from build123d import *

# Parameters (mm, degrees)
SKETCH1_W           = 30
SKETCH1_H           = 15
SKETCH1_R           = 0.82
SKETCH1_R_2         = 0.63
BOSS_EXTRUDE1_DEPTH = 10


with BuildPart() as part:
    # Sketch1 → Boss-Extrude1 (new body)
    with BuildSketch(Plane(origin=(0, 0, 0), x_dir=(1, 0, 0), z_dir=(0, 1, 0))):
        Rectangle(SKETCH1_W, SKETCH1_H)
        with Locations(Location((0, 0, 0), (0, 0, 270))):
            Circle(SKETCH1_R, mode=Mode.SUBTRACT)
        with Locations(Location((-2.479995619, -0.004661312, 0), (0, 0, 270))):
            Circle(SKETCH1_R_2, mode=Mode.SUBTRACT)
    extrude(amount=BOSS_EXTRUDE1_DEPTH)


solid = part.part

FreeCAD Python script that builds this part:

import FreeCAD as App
import Part
import Sketcher


def add_polygon(sketch, points):
    """Adds a closed chain of lines whose ends are joined by coincident constraints."""
    first, n = sketch.GeometryCount, len(points)
    for a, b in zip(points, points[1:] + points[:1]):
        sketch.addGeometry(Part.LineSegment(App.Vector(*a, 0), App.Vector(*b, 0)), False)
    for i in range(n):
        sketch.addConstraint(Sketcher.Constraint("Coincident", first + i, 2, first + (i + 1) % n, 1))

doc = App.newDocument("Part")
body = doc.addObject("PartDesign::Body", "Body")

# Sketch on XZ plane
sketch1 = body.newObject("Sketcher::SketchObject", "Sketch")
sketch1.AttachmentSupport = (doc.getObject("XZ_Plane"), [""])
sketch1.MapMode = "FlatFace"
add_polygon(sketch1, [(-15, -7.5), (-15, 7.5), (15, 7.5), (15, -7.5)])  # lines 0-3
sketch1.addGeometry(Part.Circle(App.Vector(-2.5, 0, 0), App.Vector(0, 0, 1), 0.6), False)  # 4
sketch1.addGeometry(Part.Circle(App.Vector(0, 0, 0), App.Vector(0, 0, 1), 0.8), False)  # 5
sketch1.addConstraint([
    Sketcher.Constraint("Vertical", 0),
    Sketcher.Constraint("Horizontal", 1),
    Sketcher.Constraint("Vertical", 2),
    Sketcher.Constraint("Horizontal", 3),
    Sketcher.Constraint("Coincident", 5, 3, -1, 1),
    Sketcher.Constraint("Symmetric", 0, 2, 2, 2, -1, 1),
    Sketcher.Constraint("Diameter", 4, 1.26),
    Sketcher.Constraint("Diameter", 5, 1.64),
    Sketcher.Constraint("DistanceX", 1, 1, 1, 2, 30.0),
    Sketcher.Constraint("DistanceY", 0, 1, 0, 2, 15.0),
    Sketcher.Constraint("DistanceY", -1, 1, 4, 3, 0.004661),
    Sketcher.Constraint("DistanceX", 4, 3, -1, 1, 2.479996),
])
pad1 = body.newObject("PartDesign::Pad", "Pad")
pad1.Profile = sketch1
pad1.Length = 10
pad1.Reversed = True

doc.recompute()
